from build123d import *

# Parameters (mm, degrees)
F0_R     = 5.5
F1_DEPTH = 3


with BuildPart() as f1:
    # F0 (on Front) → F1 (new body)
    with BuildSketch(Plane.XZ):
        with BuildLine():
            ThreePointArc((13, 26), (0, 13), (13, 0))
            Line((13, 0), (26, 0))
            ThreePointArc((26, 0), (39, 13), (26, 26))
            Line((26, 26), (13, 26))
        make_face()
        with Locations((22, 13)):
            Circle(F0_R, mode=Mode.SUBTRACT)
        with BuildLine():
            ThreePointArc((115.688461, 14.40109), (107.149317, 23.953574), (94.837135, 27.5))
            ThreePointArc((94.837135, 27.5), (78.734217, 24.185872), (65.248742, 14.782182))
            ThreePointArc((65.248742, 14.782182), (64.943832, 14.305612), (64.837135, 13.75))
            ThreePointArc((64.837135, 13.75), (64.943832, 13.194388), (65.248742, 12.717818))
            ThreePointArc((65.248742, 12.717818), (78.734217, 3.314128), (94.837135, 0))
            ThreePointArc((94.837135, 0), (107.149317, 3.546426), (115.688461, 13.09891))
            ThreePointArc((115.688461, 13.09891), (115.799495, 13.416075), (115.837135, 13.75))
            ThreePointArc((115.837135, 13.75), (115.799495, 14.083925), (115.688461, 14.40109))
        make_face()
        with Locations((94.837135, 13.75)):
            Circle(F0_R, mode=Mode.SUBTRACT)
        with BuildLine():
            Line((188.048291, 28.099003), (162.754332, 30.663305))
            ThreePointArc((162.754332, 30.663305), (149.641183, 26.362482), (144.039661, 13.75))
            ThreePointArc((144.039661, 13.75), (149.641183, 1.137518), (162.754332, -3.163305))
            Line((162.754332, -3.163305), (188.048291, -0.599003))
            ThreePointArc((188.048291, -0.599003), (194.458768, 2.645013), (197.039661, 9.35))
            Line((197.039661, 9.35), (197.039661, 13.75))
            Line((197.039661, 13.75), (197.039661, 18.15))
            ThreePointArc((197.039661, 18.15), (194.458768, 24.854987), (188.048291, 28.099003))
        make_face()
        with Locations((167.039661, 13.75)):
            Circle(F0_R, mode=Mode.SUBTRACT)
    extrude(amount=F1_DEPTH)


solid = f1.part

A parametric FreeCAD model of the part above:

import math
import FreeCAD as App
import Part
import Sketcher
from FreeCAD import Vector

doc = App.newDocument("Part")
body = doc.addObject("PartDesign::Body", "Body")
body.AllowCompound = True

# Sketch on XZ plane
sketch1 = body.newObject("Sketcher::SketchObject", "Sketch")
sketch1.AttachmentSupport = (doc.getObject("XZ_Plane"), [""])
sketch1.MapMode = "FlatFace"
sketch1.addGeometry([
    Part.ArcOfCircle(Part.Circle(Vector(13, 13, 0), Vector(0, 0, 1), 13), math.radians(90), math.radians(270)),  # 0
    Part.LineSegment(Vector(13, 0, 0), Vector(26, 0, 0)),  # 1
    Part.ArcOfCircle(Part.Circle(Vector(26, 13, 0), Vector(0, 0, 1), 13), math.radians(-90), math.radians(90)),  # 2
    Part.LineSegment(Vector(26, 26, 0), Vector(13, 26, 0)),  # 3
    Part.Circle(Vector(22, 13, 0), Vector(0, 0, 1), 5.5),  # 4
    Part.ArcOfCircle(Part.Circle(Vector(94.8, 4.4, 0), Vector(0, 0, 1), 23.1), math.radians(26), math.radians(90)),  # 5
    Part.ArcOfCircle(Part.Circle(Vector(94.8, -13.3, 0), Vector(0, 0, 1), 40.8), math.radians(90), math.radians(137)),  # 6
    Part.ArcOfCircle(Part.Circle(Vector(66.3, 13.7, 0), Vector(0, 0, 1), 1.5), math.radians(137), math.radians(180)),  # 7
    Part.ArcOfCircle(Part.Circle(Vector(66.3, 13.8, 0), Vector(0, 0, 1), 1.5), math.radians(-180), math.radians(-137)),  # 8
    Part.ArcOfCircle(Part.Circle(Vector(94.8, 40.8, 0), Vector(0, 0, 1), 40.8), math.radians(-137), math.radians(-90)),  # 9
    Part.ArcOfCircle(Part.Circle(Vector(94.8, 23.1, 0), Vector(0, 0, 1), 23.1), math.radians(-90), math.radians(-26)),  # 10
    Part.ArcOfCircle(Part.Circle(Vector(114.3, 13.7, 0), Vector(0, 0, 1), 1.5), math.radians(-26), math.radians(0)),  # 11
    Part.ArcOfCircle(Part.Circle(Vector(114.3, 13.8, 0), Vector(0, 0, 1), 1.5), math.radians(0), math.radians(26)),  # 12
    Part.Circle(Vector(94.8, 13.8, 0), Vector(0, 0, 1), 5.5),  # 13
    Part.LineSegment(Vector(188, 28.1, 0), Vector(162.8, 30.7, 0)),  # 14
    Part.ArcOfCircle(Part.Circle(Vector(161, 13.8, 0), Vector(0, 0, 1), 17), math.radians(84), math.radians(180)),  # 15
    Part.ArcOfCircle(Part.Circle(Vector(161, 13.7, 0), Vector(0, 0, 1), 17), math.radians(180), math.radians(276)),  # 16
    Part.LineSegment(Vector(162.8, -3.2, 0), Vector(188, -0.6, 0)),  # 17
    Part.ArcOfCircle(Part.Circle(Vector(187, 9.3, 0), Vector(0, 0, 1), 10), math.radians(-84), math.radians(0)),  # 18
    Part.LineSegment(Vector(197, 9.3, 0), Vector(197, 18.1, 0)),  # 19
    Part.ArcOfCircle(Part.Circle(Vector(187, 18.2, 0), Vector(0, 0, 1), 10), math.radians(0), math.radians(84)),  # 20
    Part.Circle(Vector(167, 13.8, 0), Vector(0, 0, 1), 5.5),  # 21
], False)
sketch1.addConstraint([
    Sketcher.Constraint("Tangent", 0, 2, 1, 1),
    Sketcher.Constraint("Tangent", 1, 2, 2, 1),
    Sketcher.Constraint("Tangent", 2, 2, 3, 1),
    Sketcher.Constraint("Tangent", 3, 2, 0, 1),
    Sketcher.Constraint("Tangent", 5, 2, 6, 1),
    Sketcher.Constraint("Tangent", 6, 2, 7, 1),
    Sketcher.Constraint("Coincident", 7, 2, 8, 1),
    Sketcher.Constraint("Tangent", 8, 2, 9, 1),
    Sketcher.Constraint("Tangent", 9, 2, 10, 1),
    Sketcher.Constraint("Coincident", 10, 2, 11, 1),
    Sketcher.Constraint("Coincident", 11, 2, 12, 1),
    Sketcher.Constraint("Coincident", 12, 2, 5, 1),
    Sketcher.Constraint("Tangent", 14, 2, 15, 1),
    Sketcher.Constraint("Tangent", 15, 2, 16, 1),
    Sketcher.Constraint("Tangent", 16, 2, 17, 1),
    Sketcher.Constraint("Tangent", 17, 2, 18, 1),
    Sketcher.Constraint("Tangent", 18, 2, 19, 1),
    Sketcher.Constraint("Tangent", 19, 2, 20, 1),
    Sketcher.Constraint("Tangent", 20, 2, 14, 1),
    Sketcher.Constraint("Horizontal", 1),
    Sketcher.Constraint("Horizontal", 3),
    Sketcher.Constraint("Vertical", 19),
    Sketcher.Constraint("Coincident", 8, 3, 7, 3),
    Sketcher.Constraint("Equal", 6, 9),
    Sketcher.Constraint("Equal", 5, 10),
    Sketcher.Constraint("Equal", 11, 12),
    Sketcher.Constraint("Equal", 4, 13),
    Sketcher.Constraint("Equal", 15, 16),
    Sketcher.Constraint("Equal", 18, 20),
    Sketcher.Constraint("Equal", 13, 21),
    Sketcher.Constraint("PointOnObject", 0, 2, -1),
    Sketcher.Constraint("PointOnObject", 9, 2, -1),
    Sketcher.Constraint("Horizontal", 2, 3, 4, 3),
    Sketcher.Constraint("Horizontal", 13, 3, 15, 3),
    Sketcher.Constraint("Horizontal", 16, 3, 21, 3),
    Sketcher.Constraint("Horizontal", 21, 3, 7, 2),
    Sketcher.Constraint("Horizontal", 7, 2, 11, 2),
    Sketcher.Constraint("Horizontal", 11, 2, 15, 2),
    Sketcher.Constraint("Vertical", 5, 3, 6, 3),
    Sketcher.Constraint("Vertical", 6, 3, 9, 3),
    Sketcher.Constraint("Vertical", 9, 3, 10, 3),
    Sketcher.Constraint("Vertical", 10, 3, 13, 3),
    Sketcher.Constraint("Vertical", 10, 2, 12, 2),
    Sketcher.Constraint("Vertical", 14, 2, 16, 2),
    Sketcher.Constraint("Diameter", 4, 11.0),
    Sketcher.Constraint("Radius", 0, 13.0),
    Sketcher.Constraint("Radius", 15, 16.999999),
    Sketcher.Constraint("Radius", 18, 10.0),
    Sketcher.Constraint("DistanceX", 1, 1, 1, 2, 13.0),
    Sketcher.Constraint("DistanceY", 19, 1, 19, 2, 8.8),
    Sketcher.Constraint("DistanceX", -1, 1, 0, 3, 13.0),
    Sketcher.Constraint("DistanceX", -1, 1, 4, 3, 22.0),
    Sketcher.Constraint("DistanceX", 16, 3, 18, 3, 26.000001),
    Sketcher.Constraint("DistanceX", 15, 3, 21, 3, 6.000001),
    Sketcher.Constraint("DistanceX", 7, 2, 13, 3, 30.0),
    Sketcher.Constraint("DistanceX", 13, 3, 11, 2, 21.0),
    Sketcher.Constraint("DistanceY", -1, 1, 5, 2, 27.5),
    Sketcher.Constraint("DistanceY", -1, 1, 13, 3, 13.75),
    Sketcher.Constraint("Radius", 6, 40.778061),
    Sketcher.Constraint("Radius", 5, 23.145407),
    Sketcher.Constraint("Radius", 11, 1.499966),
    Sketcher.Constraint("DistanceX", -1, 1, 7, 3, 66.337142),
    Sketcher.Constraint("DistanceX", -1, 1, 15, 3, 161.03966),
    Sketcher.Constraint("DistanceX", -1, 1, 10, 2, 115.688461),
])
pad1 = body.newObject("PartDesign::Pad", "Pad")
pad1.Profile = sketch1
pad1.Length = 3

doc.recompute()
